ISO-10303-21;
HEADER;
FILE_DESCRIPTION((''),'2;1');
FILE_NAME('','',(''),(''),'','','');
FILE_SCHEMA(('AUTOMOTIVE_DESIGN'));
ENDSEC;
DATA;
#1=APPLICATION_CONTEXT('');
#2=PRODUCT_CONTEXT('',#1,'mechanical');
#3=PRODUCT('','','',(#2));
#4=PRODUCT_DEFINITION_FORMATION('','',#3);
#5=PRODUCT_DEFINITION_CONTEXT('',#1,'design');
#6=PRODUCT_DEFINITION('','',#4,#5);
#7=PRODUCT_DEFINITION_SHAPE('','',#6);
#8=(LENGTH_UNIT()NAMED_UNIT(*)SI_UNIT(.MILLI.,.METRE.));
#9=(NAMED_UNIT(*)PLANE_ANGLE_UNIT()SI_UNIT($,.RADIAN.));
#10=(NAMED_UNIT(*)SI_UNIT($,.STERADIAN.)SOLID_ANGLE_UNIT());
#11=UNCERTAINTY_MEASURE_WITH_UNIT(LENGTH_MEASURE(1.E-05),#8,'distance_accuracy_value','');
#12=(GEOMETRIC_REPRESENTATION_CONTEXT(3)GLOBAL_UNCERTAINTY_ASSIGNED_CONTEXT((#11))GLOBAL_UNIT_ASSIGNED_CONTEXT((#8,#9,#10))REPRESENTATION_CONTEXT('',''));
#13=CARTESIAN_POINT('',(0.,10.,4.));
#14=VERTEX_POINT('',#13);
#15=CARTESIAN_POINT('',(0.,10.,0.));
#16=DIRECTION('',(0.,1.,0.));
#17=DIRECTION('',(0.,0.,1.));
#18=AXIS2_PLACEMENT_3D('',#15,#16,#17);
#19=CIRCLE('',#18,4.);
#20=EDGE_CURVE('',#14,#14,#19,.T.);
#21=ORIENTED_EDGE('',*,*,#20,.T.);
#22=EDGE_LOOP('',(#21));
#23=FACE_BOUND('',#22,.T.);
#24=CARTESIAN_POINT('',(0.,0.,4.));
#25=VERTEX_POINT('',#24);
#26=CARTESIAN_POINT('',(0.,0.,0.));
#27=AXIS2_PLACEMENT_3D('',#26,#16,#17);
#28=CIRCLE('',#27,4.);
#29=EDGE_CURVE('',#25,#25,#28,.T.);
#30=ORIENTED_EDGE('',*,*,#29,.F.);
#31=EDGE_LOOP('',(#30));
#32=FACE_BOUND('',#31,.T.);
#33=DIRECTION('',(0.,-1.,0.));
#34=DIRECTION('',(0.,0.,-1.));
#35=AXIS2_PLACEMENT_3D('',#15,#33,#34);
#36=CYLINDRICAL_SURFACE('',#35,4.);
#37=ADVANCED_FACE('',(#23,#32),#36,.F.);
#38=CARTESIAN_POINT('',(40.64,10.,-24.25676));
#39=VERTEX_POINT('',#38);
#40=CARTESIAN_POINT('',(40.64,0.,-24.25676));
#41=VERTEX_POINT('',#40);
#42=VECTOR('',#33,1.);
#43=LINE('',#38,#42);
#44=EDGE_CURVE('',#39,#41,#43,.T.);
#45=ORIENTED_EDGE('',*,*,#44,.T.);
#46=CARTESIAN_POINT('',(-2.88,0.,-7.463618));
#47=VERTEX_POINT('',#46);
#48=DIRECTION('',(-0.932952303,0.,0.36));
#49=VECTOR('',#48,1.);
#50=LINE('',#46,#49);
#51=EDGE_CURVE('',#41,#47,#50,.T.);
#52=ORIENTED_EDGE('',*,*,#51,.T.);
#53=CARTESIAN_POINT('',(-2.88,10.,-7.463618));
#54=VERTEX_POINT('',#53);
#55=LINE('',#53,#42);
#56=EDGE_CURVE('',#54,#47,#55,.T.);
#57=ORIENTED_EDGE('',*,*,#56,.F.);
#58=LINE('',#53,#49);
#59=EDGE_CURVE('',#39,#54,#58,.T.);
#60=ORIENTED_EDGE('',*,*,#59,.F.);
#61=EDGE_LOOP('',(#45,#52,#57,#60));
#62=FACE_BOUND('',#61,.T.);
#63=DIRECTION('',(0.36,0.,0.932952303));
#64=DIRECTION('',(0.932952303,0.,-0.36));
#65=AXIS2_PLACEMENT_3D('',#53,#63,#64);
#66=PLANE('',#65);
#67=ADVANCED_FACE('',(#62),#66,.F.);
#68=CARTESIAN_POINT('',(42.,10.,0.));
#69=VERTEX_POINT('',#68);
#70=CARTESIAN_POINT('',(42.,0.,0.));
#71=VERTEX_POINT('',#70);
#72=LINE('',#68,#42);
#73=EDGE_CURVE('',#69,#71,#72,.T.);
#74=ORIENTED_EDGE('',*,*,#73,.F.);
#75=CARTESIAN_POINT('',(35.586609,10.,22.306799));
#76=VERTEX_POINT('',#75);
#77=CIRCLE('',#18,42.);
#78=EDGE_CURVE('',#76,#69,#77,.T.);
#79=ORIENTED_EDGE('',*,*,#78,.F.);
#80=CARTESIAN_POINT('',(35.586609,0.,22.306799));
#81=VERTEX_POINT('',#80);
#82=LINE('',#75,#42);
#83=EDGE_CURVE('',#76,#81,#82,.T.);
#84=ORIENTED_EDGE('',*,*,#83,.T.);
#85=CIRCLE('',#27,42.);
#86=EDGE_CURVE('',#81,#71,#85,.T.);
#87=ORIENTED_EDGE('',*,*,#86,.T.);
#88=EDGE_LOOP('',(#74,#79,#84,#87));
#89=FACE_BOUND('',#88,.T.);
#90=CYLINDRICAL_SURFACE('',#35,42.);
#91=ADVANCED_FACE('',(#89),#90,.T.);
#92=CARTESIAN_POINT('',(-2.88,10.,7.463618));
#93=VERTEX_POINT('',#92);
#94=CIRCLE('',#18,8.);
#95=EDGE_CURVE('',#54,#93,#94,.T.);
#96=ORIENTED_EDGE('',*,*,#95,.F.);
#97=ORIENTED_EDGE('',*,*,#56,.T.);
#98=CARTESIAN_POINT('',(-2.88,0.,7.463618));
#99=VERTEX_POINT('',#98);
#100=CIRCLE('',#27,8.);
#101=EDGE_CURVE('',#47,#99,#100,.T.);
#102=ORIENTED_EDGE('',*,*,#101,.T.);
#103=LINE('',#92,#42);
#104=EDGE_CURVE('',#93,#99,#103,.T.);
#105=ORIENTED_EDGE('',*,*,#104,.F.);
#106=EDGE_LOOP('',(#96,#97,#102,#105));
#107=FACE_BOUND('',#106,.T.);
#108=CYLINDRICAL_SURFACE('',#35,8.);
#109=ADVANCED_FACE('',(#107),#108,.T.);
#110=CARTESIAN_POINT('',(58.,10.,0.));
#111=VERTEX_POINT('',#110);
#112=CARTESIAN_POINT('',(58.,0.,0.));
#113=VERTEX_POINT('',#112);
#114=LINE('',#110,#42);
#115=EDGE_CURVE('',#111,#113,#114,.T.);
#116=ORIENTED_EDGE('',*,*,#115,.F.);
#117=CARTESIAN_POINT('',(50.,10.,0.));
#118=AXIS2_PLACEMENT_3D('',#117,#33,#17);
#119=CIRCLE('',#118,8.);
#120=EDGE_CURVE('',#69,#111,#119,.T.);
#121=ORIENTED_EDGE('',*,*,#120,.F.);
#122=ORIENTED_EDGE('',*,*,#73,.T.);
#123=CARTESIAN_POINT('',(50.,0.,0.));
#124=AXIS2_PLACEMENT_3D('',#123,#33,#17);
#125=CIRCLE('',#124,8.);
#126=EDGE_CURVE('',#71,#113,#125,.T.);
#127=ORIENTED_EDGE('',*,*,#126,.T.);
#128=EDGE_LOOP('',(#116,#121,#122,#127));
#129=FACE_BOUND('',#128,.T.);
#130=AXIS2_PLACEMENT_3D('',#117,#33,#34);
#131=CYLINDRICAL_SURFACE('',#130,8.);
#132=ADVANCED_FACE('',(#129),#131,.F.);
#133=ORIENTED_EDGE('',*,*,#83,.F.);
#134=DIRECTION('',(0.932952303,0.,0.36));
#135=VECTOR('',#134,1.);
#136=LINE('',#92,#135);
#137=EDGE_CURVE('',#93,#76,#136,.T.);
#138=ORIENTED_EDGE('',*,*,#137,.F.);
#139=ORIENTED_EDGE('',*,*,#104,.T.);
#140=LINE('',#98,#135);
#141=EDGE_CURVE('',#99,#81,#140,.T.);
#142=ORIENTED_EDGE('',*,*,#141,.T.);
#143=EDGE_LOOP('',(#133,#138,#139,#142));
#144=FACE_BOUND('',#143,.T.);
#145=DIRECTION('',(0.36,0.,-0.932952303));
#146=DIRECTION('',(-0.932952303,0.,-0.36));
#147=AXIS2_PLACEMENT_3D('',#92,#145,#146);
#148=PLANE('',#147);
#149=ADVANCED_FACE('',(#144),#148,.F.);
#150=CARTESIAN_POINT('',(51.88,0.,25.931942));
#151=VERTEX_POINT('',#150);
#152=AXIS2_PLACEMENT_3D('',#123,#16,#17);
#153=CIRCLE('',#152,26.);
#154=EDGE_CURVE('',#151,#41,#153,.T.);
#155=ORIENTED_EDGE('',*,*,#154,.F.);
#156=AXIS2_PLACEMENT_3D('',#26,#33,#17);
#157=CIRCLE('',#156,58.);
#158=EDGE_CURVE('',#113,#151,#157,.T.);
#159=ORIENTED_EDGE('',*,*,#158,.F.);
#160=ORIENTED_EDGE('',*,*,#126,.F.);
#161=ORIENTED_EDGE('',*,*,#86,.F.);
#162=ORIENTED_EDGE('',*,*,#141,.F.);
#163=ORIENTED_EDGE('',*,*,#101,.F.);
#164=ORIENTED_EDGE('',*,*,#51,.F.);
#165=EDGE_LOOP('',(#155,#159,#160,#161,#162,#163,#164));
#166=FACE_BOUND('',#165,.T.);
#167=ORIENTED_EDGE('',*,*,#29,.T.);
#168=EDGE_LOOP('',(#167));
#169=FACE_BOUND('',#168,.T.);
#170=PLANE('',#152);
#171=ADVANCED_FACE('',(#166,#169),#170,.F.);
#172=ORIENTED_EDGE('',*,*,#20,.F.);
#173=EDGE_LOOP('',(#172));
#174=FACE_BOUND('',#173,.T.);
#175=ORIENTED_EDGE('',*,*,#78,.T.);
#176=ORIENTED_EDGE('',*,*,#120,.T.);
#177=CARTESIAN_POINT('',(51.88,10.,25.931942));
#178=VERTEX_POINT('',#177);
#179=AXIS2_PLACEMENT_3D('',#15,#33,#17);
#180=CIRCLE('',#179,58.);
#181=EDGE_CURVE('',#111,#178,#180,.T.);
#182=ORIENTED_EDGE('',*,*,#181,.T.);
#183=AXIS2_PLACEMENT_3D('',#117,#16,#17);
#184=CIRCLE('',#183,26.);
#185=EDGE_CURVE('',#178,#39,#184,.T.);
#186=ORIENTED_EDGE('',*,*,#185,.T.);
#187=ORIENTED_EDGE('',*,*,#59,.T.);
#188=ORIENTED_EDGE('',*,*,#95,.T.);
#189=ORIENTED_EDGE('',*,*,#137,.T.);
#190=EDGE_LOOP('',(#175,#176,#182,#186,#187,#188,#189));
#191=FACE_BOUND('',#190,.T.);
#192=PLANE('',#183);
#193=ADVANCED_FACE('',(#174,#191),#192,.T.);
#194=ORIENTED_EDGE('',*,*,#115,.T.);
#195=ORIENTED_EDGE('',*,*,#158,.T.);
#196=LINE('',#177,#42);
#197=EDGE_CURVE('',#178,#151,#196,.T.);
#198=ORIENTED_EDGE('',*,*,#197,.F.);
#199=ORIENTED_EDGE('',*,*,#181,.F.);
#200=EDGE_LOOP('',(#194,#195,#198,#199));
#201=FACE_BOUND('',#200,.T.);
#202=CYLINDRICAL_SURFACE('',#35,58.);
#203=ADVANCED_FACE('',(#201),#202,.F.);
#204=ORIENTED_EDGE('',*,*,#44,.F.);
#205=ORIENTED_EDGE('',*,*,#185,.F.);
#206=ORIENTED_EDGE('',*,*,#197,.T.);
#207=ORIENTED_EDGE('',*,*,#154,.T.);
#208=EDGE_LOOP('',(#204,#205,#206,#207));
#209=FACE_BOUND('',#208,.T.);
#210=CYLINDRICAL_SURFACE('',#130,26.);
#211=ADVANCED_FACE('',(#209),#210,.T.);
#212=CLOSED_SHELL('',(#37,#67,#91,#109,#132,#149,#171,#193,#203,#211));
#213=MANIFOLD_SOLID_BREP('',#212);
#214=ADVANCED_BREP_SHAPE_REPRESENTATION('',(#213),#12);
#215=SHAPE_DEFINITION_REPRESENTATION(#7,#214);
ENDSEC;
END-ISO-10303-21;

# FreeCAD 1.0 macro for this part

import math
import FreeCAD as App
import Part
import Sketcher

V = App.Vector

doc = App.newDocument("Part")
body = doc.addObject("PartDesign::Body", "Body")

sketch1 = body.newObject("Sketcher::SketchObject", "Sketch")
sketch1.AttachmentSupport = (doc.getObject("XZ_Plane"), [""])
sketch1.MapMode = "FlatFace"
sketch1.addGeometry([
    Part.LineSegment(V(40.64, -24.25676, 0), V(-2.88, -7.463618, 0)),
    Part.ArcOfCircle(Part.Circle(V(0, 0, 0), V(0, 0, 1), 8), math.radians(111.100196), math.radians(248.899804)),
    Part.LineSegment(V(-2.88, 7.463618, 0), V(35.586609, 22.306799, 0)),
    Part.ArcOfCircle(Part.Circle(V(0, 0, 0), V(0, 0, 1), 42), math.radians(0), math.radians(32.080771)),
    Part.ArcOfCircle(Part.Circle(V(50, 0, 0), V(0, 0, 1), 8), math.radians(180), math.radians(360)),
    Part.ArcOfCircle(Part.Circle(V(0, 0, 0), V(0, 0, 1), 58), math.radians(0), math.radians(26.557931)),
    Part.ArcOfCircle(Part.Circle(V(50, 0, 0), V(0, 0, 1), 26), math.radians(-111.100196), math.radians(85.853456)),
    Part.Circle(V(0, 0, 0), V(0, 0, 1), 4),
], False)
sketch1.addConstraint([
    Sketcher.Constraint("Tangent", 0, 2, 1, 2),
    Sketcher.Constraint("Tangent", 1, 1, 2, 1),
    Sketcher.Constraint("Coincident", 2, 2, 3, 2),
    Sketcher.Constraint("Tangent", 3, 1, 4, 1),
    Sketcher.Constraint("Tangent", 4, 2, 5, 1),
    Sketcher.Constraint("Coincident", 5, 2, 6, 2),
    Sketcher.Constraint("Tangent", 6, 1, 0, 1),
    Sketcher.Constraint("Coincident", 1, 3, -1, 1),
    Sketcher.Constraint("Coincident", 3, 3, -1, 1),
    Sketcher.Constraint("Coincident", 5, 3, -1, 1),
    Sketcher.Constraint("Coincident", 7, 3, -1, 1),
    Sketcher.Constraint("Coincident", 6, 3, 4, 3),
    Sketcher.Constraint("Equal", 1, 4),
    Sketcher.Constraint("PointOnObject", 4, 3, -1),
    Sketcher.Constraint("Vertical", 0, 2, 1, 1),
    Sketcher.Constraint("Diameter", 7, 8.0),
    Sketcher.Constraint("Radius", 1, 8.0),
    Sketcher.Constraint("Radius", 3, 42.0),
    Sketcher.Constraint("Radius", 6, 26.0),
])
pad1 = body.newObject("PartDesign::Pad", "Pad")
pad1.Profile = sketch1
pad1.Length = 10
pad1.Reversed = True

doc.recompute()
